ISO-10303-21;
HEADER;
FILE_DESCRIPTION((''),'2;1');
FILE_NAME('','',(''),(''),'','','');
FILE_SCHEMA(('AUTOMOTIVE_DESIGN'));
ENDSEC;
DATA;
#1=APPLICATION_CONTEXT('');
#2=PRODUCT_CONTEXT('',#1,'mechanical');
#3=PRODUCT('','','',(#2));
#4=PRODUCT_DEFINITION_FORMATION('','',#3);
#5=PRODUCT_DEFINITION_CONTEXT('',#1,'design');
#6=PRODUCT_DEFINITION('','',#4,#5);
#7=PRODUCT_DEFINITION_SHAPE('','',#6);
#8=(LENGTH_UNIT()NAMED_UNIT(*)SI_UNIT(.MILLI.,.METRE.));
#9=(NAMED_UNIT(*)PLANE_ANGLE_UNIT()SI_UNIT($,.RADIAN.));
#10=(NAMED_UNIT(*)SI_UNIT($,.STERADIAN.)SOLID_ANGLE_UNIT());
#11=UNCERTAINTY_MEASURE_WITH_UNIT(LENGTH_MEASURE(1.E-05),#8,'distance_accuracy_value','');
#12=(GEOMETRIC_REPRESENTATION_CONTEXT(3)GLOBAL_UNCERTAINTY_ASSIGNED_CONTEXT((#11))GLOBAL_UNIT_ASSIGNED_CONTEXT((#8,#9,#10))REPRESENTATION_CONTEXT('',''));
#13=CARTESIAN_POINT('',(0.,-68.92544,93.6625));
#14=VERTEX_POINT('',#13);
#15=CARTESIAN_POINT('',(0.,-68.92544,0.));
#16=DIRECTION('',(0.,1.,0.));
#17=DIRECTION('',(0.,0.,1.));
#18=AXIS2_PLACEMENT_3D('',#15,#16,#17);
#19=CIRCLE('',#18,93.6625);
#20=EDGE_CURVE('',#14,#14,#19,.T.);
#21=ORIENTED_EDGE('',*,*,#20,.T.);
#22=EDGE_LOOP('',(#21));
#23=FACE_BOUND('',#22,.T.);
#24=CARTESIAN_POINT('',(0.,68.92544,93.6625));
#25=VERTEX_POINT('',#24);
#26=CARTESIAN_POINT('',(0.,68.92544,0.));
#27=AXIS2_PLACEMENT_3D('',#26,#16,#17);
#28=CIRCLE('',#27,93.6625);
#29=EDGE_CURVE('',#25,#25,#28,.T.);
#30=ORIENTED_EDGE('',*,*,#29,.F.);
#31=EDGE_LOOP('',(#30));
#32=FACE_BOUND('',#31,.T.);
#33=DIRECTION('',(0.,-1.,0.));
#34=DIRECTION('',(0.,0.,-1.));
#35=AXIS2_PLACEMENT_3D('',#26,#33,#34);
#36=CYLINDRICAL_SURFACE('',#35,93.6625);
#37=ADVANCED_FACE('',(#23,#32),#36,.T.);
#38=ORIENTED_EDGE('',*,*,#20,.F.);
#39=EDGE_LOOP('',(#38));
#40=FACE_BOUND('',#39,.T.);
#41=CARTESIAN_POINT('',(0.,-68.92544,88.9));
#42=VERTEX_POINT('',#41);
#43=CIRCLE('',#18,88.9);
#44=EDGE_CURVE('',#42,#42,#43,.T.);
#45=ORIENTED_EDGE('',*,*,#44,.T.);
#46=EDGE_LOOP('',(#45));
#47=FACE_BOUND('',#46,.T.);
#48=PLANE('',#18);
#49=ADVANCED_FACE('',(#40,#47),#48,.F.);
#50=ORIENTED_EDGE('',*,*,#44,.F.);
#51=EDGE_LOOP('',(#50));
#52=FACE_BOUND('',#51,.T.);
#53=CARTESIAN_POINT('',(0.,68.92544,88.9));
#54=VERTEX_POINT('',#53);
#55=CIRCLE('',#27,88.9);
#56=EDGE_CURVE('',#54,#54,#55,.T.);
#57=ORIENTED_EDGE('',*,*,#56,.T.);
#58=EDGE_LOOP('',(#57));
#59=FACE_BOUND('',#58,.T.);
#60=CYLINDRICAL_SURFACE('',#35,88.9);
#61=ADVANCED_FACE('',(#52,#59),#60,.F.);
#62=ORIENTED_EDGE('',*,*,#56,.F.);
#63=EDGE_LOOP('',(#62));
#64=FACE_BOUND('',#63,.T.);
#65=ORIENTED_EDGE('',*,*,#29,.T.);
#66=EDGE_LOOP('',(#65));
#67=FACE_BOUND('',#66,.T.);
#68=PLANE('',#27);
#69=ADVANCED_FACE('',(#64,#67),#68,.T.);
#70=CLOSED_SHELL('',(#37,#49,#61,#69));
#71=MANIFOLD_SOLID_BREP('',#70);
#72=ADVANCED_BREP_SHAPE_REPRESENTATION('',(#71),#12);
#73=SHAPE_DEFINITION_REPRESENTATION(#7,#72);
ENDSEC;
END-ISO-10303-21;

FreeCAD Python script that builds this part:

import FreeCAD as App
import Part
import Sketcher
from FreeCAD import Vector
Q = App.Units.Quantity

doc = App.newDocument("Part")
body = doc.addObject("PartDesign::Body", "Body")

# Sketch on XZ plane
sketch1 = body.newObject("Sketcher::SketchObject", "Sketch")
sketch1.AttachmentSupport = (doc.getObject("XZ_Plane"), [""])
sketch1.MapMode = "FlatFace"
sketch1.addGeometry([
    Part.Circle(Vector(0, 0, 0), Vector(0, 0, 1), 94),
    Part.Circle(Vector(0, 0, 0), Vector(0, 0, 1), 89),
], False)
sketch1.addConstraint([
    Sketcher.Constraint("Coincident", 0, 3, -1, 1),
    Sketcher.Constraint("Coincident", 1, 3, -1, 1),
    Sketcher.Constraint("Diameter", 1, Q("7 in")),
    Sketcher.Constraint("Diameter", 0, Q("7.375 in")),
])
pad1 = body.newObject("PartDesign::Pad", "Pad")
pad1.Profile = sketch1
pad1.Length = Q("5.4272 in")
pad1.Midplane = True

doc.recompute()
